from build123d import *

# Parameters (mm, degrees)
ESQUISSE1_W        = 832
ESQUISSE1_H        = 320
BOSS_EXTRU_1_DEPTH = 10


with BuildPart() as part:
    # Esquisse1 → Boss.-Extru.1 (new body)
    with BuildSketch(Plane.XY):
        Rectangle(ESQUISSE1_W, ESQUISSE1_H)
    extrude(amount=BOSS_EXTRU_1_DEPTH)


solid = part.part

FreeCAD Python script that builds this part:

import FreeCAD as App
import Part
import Sketcher
from FreeCAD import Vector
Q = App.Units.Quantity

doc = App.newDocument("Part")
body = doc.addObject("PartDesign::Body", "Body")

sketch1 = doc.addObject("Sketcher::SketchObject", "Sketch")
body.addObject(sketch1)
sketch1.AttachmentSupport = (doc.XY_Plane, [""])
sketch1.MapMode = "FlatFace"
sketch1.addGeometry([
    Part.LineSegment(Vector(-416, 160, 0), Vector(-416, -160, 0)),
    Part.LineSegment(Vector(-416, -160, 0), Vector(416, -160, 0)),
    Part.LineSegment(Vector(416, -160, 0), Vector(416, 160, 0)),
    Part.LineSegment(Vector(416, 160, 0), Vector(-416, 160, 0)),
], False)
sketch1.addConstraint([
    Sketcher.Constraint("Coincident", 0, 2, 1, 1),
    Sketcher.Constraint("Coincident", 1, 2, 2, 1),
    Sketcher.Constraint("Coincident", 2, 2, 3, 1),
    Sketcher.Constraint("Coincident", 3, 2, 0, 1),
    Sketcher.Constraint("Vertical", 0),
    Sketcher.Constraint("Horizontal", 1),
    Sketcher.Constraint("Vertical", 2),
    Sketcher.Constraint("Horizontal", 3),
    Sketcher.Constraint("Symmetric", 0, 2, 2, 2, -1, 1),
    Sketcher.Constraint("DistanceX", 1, 1, 1, 2, Q("832 mm")),
    Sketcher.Constraint("DistanceY", 0, 2, 0, 1, Q("320 mm")),
])
pad1 = doc.addObject("PartDesign::Pad", "Pad")
body.addObject(pad1)
pad1.Profile = sketch1
pad1.Length = 10

doc.recompute()
